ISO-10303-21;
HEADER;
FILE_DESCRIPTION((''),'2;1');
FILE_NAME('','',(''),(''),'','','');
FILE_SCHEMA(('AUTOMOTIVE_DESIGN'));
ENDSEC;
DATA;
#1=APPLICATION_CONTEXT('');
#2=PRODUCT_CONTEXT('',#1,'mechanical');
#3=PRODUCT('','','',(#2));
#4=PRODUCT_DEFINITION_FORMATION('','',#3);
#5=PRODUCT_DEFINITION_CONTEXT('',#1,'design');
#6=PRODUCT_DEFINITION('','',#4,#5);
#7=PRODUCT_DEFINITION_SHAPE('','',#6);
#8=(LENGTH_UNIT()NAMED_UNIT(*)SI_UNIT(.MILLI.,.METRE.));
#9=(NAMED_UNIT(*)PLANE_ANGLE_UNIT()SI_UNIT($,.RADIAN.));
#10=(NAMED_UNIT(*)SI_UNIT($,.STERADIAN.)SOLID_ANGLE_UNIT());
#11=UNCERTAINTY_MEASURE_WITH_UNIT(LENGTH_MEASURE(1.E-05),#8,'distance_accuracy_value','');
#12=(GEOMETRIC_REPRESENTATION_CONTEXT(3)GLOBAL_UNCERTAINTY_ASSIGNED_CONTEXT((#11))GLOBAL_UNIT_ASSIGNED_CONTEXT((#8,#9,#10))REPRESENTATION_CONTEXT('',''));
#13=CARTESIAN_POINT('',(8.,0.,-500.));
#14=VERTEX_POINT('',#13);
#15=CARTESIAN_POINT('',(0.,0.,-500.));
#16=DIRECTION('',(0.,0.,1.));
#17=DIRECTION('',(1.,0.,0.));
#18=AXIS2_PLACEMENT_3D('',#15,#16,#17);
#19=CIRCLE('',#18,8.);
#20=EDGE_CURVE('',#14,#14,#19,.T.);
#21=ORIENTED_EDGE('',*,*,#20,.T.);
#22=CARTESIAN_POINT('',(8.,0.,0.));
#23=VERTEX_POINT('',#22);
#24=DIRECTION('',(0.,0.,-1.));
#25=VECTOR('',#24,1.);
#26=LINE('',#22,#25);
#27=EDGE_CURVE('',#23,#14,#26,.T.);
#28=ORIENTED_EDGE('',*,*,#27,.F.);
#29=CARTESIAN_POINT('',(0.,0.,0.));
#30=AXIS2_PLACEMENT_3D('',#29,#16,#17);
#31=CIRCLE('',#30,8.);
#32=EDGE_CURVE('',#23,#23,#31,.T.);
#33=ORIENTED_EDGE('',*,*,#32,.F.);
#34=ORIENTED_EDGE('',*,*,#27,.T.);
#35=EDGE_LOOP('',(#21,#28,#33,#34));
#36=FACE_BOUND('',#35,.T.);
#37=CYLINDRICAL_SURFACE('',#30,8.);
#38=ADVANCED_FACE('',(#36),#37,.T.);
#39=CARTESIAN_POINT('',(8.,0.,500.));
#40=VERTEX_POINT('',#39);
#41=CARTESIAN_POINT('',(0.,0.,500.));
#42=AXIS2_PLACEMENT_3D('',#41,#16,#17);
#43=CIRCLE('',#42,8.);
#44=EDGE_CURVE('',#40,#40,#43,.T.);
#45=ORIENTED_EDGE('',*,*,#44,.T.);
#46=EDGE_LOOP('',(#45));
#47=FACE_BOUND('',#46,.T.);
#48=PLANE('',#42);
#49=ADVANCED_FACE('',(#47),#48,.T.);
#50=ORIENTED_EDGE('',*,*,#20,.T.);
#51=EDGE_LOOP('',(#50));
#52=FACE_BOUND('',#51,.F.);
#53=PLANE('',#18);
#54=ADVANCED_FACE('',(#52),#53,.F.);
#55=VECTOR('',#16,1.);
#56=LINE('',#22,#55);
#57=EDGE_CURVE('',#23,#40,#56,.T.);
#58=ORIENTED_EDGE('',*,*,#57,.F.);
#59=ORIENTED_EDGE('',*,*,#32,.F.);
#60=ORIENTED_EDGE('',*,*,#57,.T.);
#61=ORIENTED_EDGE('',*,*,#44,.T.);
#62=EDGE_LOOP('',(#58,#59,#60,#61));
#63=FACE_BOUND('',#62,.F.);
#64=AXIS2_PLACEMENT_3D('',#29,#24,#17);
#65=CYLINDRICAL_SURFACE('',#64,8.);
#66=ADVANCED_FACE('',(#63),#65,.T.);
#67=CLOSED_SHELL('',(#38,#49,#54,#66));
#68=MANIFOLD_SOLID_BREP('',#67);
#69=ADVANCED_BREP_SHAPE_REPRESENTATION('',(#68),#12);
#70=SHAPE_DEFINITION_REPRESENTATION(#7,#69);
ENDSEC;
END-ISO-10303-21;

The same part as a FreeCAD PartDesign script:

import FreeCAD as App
import Part
import Sketcher

V = App.Vector

doc = App.newDocument("Part")
body = doc.addObject("PartDesign::Body", "Body")

# Sketch on XY plane
sketch1 = body.newObject("Sketcher::SketchObject", "Sketch")
sketch1.AttachmentSupport = (doc.getObject("XY_Plane"), [""])
sketch1.MapMode = "FlatFace"
sketch1.addGeometry(Part.Circle(V(0, 0, 0), V(0, 0, 1), 8), False)
sketch1.addConstraint([
    Sketcher.Constraint("Coincident", 0, 3, -1, 1),
    Sketcher.Constraint("Diameter", 0, 16.0),
])
pad1 = body.newObject("PartDesign::Pad", "Pad")
pad1.Profile = sketch1
pad1.Length = 1000
pad1.Midplane = True

doc.recompute()
